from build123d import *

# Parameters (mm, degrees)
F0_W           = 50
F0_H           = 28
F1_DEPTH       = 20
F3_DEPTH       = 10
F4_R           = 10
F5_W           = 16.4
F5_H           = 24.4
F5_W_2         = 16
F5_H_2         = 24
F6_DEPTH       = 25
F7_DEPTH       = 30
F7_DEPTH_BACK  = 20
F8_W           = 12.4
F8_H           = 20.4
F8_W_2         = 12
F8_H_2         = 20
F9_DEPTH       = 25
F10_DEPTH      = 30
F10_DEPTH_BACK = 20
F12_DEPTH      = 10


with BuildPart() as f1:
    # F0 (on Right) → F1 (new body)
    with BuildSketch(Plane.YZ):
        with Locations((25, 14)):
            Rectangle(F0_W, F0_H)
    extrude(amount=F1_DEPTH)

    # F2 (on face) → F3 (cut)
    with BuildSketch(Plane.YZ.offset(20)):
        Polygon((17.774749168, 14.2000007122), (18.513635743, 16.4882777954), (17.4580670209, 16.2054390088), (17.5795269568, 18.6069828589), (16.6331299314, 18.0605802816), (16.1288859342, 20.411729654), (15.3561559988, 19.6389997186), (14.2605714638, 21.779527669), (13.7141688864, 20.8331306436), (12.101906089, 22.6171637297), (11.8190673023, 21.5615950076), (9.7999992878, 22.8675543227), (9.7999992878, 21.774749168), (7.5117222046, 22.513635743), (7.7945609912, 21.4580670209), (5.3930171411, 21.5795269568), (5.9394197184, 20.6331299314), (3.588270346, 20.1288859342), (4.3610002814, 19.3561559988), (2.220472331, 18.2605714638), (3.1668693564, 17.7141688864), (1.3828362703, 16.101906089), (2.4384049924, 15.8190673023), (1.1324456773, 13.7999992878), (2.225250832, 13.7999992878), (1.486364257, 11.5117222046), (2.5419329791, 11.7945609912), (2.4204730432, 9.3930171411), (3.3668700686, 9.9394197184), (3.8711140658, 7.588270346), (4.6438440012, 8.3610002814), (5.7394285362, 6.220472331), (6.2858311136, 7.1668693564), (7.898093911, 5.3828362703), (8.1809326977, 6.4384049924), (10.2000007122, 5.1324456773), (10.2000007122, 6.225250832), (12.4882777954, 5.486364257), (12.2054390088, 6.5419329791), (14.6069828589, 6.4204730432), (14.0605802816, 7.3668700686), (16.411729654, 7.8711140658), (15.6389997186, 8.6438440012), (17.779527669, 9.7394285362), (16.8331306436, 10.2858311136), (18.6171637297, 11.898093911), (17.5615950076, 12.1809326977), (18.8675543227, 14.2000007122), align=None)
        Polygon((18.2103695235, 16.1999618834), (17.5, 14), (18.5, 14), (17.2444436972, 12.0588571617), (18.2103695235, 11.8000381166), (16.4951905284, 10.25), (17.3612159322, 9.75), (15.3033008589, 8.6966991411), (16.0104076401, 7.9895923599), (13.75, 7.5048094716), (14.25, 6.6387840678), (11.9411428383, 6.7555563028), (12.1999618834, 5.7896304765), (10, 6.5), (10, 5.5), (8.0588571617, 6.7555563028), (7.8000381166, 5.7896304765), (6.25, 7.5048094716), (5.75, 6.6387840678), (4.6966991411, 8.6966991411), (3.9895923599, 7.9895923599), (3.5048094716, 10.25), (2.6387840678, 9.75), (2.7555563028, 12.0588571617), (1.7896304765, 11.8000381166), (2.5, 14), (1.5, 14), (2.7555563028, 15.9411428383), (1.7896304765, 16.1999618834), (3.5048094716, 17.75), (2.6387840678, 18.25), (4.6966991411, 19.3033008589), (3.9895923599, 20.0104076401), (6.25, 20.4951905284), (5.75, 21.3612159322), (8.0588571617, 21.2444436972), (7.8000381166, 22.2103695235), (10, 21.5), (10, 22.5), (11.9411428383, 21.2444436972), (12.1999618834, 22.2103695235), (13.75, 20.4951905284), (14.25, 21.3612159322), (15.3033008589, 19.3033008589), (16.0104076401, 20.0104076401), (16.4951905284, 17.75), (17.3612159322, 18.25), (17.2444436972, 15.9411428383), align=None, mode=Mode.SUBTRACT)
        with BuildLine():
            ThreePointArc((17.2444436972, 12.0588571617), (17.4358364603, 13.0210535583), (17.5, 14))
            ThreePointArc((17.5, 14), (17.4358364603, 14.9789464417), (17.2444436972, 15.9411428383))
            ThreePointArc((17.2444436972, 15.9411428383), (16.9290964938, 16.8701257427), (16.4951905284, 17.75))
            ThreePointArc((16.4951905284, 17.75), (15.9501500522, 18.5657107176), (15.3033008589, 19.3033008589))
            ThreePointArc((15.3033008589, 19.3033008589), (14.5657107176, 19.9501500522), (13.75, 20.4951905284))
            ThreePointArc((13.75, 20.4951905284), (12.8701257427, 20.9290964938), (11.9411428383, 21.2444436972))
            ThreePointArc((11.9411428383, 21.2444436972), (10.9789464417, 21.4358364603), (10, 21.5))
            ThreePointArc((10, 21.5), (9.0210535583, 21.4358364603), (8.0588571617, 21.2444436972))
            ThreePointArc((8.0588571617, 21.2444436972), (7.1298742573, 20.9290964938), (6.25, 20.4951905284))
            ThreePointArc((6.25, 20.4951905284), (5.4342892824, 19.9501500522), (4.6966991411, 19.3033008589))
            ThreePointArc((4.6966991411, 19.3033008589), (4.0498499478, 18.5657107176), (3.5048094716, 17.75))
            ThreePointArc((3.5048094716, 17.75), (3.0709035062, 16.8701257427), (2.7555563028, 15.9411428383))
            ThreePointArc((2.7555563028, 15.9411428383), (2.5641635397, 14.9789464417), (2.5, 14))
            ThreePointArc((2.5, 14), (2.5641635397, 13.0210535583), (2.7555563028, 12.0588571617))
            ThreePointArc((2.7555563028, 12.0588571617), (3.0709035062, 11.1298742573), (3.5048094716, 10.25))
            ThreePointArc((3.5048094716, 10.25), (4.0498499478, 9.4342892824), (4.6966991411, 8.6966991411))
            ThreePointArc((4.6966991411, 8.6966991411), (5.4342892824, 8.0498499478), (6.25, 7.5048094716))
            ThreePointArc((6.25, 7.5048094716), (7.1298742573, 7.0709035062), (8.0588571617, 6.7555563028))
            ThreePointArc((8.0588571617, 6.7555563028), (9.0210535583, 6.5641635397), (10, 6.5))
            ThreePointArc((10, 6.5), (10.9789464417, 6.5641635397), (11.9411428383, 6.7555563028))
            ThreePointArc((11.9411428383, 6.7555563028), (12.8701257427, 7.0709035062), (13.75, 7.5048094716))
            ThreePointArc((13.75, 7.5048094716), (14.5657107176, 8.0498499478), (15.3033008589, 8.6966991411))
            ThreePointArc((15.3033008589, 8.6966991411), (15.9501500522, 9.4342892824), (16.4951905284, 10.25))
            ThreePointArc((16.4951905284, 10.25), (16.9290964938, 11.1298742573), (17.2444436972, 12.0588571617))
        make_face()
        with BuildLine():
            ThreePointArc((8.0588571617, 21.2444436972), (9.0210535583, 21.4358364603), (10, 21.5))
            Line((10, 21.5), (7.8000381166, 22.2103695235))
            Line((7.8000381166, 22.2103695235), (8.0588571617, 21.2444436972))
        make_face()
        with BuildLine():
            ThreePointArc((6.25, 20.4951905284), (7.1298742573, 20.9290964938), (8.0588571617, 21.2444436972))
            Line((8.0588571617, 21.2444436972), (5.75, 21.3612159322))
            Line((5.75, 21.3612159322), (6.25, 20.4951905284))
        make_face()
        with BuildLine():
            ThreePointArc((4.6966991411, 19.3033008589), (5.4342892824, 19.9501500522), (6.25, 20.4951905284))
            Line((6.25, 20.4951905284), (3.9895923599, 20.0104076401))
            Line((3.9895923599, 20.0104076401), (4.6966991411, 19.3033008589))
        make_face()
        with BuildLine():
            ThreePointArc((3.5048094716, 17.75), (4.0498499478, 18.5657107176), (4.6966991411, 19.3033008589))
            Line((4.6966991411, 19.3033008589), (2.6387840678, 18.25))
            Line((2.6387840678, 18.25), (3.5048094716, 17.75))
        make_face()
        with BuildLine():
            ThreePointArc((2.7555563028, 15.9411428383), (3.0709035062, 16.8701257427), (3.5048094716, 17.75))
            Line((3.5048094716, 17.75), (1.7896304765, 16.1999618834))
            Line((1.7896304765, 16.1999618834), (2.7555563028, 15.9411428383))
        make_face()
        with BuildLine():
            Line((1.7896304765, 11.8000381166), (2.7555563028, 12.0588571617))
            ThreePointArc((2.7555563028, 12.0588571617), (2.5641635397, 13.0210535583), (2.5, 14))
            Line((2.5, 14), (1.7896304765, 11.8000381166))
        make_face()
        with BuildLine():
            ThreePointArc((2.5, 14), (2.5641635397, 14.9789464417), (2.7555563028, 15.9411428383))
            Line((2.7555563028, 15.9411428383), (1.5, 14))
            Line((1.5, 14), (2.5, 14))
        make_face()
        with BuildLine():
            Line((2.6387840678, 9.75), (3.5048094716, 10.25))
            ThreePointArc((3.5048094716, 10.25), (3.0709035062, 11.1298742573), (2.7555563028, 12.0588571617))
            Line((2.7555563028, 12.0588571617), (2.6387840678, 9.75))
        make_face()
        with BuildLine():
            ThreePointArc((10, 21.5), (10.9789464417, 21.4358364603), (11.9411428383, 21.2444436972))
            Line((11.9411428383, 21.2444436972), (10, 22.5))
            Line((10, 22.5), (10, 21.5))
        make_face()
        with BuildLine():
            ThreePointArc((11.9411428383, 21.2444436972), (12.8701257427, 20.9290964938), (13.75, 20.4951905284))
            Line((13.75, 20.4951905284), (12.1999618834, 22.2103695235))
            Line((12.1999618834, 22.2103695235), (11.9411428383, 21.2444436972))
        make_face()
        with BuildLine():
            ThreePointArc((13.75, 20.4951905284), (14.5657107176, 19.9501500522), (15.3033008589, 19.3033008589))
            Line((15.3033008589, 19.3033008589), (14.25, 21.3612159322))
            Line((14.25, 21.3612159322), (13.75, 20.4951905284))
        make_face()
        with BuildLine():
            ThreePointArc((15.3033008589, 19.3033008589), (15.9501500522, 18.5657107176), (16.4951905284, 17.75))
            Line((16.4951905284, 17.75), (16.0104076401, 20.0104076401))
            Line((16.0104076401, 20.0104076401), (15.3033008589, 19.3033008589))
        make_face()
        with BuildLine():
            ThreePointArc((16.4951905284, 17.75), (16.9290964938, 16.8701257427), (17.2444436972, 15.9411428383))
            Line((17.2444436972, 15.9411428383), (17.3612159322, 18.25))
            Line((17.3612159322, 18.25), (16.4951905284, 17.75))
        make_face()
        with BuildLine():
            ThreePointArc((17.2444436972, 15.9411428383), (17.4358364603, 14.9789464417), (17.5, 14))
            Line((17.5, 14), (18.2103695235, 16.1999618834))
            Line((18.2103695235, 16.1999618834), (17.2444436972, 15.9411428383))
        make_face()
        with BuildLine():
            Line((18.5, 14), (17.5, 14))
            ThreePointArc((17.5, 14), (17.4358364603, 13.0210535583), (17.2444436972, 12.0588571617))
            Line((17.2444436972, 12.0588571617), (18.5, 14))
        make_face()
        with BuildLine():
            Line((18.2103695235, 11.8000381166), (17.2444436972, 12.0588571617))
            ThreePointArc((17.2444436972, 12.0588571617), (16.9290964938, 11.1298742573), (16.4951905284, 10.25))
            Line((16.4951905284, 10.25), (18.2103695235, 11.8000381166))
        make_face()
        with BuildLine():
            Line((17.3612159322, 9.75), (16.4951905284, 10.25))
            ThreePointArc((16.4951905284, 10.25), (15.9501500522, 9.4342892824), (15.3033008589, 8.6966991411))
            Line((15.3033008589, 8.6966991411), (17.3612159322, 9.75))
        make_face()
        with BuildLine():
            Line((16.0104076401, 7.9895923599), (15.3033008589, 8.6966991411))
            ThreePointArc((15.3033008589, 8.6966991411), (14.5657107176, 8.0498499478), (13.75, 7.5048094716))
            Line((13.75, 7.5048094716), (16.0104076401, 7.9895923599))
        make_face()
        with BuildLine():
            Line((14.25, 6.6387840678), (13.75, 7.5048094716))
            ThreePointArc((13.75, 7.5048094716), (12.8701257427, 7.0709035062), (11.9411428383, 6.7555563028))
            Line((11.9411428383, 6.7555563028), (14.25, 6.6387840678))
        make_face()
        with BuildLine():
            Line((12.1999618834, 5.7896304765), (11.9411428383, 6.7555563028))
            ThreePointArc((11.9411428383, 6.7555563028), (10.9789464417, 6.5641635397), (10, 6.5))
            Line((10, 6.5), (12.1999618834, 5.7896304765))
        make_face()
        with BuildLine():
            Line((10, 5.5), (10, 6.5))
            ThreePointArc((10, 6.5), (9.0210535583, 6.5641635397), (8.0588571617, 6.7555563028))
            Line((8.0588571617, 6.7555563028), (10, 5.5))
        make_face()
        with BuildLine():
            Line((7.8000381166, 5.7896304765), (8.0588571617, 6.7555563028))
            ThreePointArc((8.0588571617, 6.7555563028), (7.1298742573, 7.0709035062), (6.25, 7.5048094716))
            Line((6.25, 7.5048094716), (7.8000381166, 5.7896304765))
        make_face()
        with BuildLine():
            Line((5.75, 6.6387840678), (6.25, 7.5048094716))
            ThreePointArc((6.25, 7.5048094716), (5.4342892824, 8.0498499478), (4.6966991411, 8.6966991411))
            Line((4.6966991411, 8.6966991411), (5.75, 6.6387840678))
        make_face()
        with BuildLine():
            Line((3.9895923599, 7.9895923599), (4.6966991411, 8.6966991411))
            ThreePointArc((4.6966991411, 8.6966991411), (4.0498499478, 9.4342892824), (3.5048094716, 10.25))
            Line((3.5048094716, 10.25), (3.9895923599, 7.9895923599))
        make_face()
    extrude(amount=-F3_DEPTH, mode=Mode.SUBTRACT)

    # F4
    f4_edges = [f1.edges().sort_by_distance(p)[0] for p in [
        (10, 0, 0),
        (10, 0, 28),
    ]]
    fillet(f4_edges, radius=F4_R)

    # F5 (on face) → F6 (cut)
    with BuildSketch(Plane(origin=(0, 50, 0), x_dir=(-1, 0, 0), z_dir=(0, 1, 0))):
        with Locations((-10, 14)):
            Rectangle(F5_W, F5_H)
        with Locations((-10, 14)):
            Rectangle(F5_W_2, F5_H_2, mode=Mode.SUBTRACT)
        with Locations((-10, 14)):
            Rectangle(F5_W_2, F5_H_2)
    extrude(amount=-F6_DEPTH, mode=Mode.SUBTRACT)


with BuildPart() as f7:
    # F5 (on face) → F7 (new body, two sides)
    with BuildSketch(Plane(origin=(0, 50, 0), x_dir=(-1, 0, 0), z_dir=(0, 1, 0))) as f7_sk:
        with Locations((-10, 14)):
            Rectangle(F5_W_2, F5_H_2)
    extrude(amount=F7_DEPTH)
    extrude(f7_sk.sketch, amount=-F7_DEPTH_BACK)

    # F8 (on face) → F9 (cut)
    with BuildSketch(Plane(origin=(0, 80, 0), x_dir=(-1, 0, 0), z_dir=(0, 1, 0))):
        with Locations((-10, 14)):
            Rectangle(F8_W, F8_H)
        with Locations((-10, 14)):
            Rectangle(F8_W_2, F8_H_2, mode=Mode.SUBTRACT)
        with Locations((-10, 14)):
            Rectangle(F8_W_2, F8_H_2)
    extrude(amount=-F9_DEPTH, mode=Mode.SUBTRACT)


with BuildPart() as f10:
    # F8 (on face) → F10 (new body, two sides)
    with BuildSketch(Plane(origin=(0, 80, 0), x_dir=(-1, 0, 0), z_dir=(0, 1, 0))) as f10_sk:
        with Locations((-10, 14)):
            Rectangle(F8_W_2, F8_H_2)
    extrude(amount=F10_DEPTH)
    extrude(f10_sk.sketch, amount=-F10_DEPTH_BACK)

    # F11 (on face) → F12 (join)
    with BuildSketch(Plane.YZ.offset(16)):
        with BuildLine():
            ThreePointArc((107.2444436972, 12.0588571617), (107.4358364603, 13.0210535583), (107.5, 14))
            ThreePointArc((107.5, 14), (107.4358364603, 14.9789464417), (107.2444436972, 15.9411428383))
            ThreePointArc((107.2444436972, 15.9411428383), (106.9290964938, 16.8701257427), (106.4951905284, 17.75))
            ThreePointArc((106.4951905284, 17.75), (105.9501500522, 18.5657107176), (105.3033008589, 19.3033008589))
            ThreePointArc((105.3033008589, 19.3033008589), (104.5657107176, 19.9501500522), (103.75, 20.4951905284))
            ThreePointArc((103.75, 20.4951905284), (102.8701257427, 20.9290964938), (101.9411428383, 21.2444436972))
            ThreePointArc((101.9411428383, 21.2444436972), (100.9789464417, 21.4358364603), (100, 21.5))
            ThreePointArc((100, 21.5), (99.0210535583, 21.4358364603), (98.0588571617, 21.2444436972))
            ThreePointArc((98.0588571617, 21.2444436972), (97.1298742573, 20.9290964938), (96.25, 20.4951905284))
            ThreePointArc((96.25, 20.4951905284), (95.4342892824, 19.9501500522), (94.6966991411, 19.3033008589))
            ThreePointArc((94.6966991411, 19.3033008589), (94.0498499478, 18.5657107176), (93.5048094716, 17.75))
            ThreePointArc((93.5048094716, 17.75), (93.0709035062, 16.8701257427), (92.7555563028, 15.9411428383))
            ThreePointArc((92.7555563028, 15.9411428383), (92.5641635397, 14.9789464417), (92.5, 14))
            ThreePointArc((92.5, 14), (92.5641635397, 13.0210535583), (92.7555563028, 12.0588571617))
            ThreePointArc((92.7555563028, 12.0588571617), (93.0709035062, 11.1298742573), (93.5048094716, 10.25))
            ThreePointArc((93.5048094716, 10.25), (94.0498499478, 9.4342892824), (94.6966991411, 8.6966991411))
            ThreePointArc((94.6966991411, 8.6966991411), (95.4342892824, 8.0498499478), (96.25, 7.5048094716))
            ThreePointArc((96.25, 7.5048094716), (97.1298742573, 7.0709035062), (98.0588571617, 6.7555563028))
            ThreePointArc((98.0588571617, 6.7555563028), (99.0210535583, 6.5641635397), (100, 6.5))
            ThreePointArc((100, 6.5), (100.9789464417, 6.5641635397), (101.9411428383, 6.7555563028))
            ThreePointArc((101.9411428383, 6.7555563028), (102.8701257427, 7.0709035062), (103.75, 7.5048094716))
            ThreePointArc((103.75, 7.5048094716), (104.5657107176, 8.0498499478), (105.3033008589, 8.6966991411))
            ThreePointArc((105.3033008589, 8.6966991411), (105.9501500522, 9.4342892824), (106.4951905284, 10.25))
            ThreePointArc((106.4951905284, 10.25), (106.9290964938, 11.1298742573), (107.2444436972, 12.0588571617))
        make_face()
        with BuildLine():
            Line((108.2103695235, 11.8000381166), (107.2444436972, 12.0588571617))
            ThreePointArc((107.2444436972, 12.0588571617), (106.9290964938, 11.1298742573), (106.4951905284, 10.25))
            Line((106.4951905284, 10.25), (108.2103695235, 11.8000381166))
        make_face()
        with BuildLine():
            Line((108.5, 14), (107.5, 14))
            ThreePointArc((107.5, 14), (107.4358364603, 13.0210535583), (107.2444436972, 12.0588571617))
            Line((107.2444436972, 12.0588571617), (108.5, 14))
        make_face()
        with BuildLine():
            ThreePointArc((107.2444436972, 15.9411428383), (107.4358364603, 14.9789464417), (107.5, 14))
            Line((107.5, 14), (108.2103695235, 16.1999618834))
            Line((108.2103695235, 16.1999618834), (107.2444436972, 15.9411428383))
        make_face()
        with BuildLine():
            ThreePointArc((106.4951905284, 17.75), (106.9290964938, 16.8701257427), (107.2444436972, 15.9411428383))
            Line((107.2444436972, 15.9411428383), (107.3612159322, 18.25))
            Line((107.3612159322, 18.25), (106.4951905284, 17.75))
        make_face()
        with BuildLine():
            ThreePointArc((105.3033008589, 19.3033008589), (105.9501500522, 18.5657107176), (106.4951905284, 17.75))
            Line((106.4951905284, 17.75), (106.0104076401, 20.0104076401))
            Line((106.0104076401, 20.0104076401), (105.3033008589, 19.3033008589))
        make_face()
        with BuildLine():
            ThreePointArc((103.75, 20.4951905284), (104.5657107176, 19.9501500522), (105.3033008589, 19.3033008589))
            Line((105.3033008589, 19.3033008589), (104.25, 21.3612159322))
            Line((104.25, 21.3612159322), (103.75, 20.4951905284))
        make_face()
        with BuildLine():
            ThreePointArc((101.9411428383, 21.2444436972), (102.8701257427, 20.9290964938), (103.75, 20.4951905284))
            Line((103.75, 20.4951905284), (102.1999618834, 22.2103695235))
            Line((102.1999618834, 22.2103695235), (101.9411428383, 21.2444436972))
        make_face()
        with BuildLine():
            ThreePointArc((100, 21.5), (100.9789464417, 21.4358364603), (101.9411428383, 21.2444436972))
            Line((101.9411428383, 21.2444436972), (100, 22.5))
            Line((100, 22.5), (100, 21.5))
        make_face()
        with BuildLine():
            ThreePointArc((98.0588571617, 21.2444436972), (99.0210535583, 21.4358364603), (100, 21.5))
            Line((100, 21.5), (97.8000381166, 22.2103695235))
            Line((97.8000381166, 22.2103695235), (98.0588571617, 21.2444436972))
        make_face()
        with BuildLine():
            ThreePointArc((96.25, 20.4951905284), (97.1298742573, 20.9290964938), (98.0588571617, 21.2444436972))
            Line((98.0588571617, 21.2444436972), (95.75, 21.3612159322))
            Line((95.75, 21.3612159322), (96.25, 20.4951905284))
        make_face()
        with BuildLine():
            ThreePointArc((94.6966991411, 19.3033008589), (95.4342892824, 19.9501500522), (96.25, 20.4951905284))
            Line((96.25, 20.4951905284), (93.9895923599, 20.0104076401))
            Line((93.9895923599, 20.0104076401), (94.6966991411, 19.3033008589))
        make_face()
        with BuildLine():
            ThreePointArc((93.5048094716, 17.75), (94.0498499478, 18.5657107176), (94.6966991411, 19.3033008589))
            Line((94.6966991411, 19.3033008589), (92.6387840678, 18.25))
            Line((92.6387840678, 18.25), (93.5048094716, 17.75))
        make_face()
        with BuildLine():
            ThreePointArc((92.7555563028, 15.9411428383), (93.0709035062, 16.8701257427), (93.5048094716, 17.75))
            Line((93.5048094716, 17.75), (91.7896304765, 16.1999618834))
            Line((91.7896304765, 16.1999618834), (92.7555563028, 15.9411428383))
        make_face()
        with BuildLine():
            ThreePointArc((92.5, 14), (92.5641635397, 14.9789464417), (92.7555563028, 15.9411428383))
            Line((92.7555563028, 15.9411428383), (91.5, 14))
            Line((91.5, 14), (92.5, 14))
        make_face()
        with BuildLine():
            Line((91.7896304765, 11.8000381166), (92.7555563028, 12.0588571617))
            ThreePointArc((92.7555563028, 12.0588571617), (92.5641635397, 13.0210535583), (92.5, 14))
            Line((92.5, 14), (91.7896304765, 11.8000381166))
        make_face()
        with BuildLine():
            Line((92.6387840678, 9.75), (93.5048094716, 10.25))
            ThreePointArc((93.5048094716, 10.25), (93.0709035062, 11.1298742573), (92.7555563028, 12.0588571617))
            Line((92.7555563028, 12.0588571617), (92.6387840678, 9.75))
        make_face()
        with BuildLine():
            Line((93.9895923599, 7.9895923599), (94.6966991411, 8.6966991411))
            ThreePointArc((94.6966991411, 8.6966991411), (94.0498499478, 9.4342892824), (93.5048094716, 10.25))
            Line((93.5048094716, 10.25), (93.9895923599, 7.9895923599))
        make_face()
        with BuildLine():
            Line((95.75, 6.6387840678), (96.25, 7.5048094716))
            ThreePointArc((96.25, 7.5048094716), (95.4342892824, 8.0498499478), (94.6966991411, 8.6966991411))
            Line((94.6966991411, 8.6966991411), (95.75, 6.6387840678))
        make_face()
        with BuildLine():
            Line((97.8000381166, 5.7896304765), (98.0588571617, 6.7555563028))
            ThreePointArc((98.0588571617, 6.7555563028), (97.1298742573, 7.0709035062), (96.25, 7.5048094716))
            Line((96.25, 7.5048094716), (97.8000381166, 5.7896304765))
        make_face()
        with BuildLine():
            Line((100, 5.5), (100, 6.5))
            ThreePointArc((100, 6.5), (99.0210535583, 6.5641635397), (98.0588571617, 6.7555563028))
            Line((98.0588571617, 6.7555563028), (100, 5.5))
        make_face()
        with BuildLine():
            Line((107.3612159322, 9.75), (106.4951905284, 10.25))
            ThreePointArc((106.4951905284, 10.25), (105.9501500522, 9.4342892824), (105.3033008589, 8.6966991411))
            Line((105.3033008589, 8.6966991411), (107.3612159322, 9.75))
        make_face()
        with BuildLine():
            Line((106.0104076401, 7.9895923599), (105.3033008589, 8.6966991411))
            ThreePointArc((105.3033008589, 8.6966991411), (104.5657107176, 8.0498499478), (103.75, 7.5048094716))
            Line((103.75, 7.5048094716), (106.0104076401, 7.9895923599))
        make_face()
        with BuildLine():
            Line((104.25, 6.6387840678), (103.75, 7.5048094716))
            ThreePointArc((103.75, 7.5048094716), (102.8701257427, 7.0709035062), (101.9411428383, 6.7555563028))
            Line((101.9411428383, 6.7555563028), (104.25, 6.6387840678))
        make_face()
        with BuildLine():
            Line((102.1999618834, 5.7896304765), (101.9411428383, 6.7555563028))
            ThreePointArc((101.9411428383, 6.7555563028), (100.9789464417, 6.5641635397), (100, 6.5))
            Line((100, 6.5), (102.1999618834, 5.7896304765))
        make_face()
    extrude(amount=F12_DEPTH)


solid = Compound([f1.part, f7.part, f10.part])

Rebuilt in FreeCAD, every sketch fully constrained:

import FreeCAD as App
import Part
import Sketcher
Q = App.Units.Quantity


def edges_at(feature, points):
    """Names of the edges that pass closest to the given points."""
    edges = feature.Shape.Edges
    near = lambda p: min(range(len(edges)), key=lambda i: edges[i].distToShape(Part.Vertex(*p))[0])
    return sorted({f"Edge{near(p) + 1}" for p in points})


def add_polygon(sketch, points):
    """Adds a closed chain of lines whose ends are joined by coincident constraints."""
    first, n = sketch.GeometryCount, len(points)
    for a, b in zip(points, points[1:] + points[:1]):
        sketch.addGeometry(Part.LineSegment(App.Vector(*a, 0), App.Vector(*b, 0)), False)
    for i in range(n):
        sketch.addConstraint(Sketcher.Constraint("Coincident", first + i, 2, first + (i + 1) % n, 1))

doc = App.newDocument("Part")
body = doc.addObject("PartDesign::Body", "Body")

# Sketch on YZ plane
sketch1 = body.newObject("Sketcher::SketchObject", "Sketch")
sketch1.AttachmentSupport = (doc.getObject("YZ_Plane"), [""])
sketch1.MapMode = "FlatFace"
add_polygon(sketch1, [(0, 28), (0, 0), (50, 0), (50, 28)])  # lines 0-3
sketch1.addConstraint([
    Sketcher.Constraint("Vertical", 0),
    Sketcher.Constraint("Horizontal", 1),
    Sketcher.Constraint("Vertical", 2),
    Sketcher.Constraint("Horizontal", 3),
    Sketcher.Constraint("Coincident", 0, 2, -1, 1),
    Sketcher.Constraint("DistanceX", 1, 1, 1, 2, 50.0),
    Sketcher.Constraint("DistanceY", 0, 2, 0, 1, 28.0),
])
pad1 = body.newObject("PartDesign::Pad", "Pad")
pad1.Profile = sketch1
pad1.Length = 20

# Sketch on YZ plane
sketch2 = body.newObject("Sketcher::SketchObject", "Sketch001")
sketch2.AttachmentSupport = (doc.getObject("YZ_Plane"), [""])
sketch2.MapMode = "FlatFace"
sketch2.AttachmentOffset = App.Placement(App.Vector(0, 0, 20), App.Rotation())
add_polygon(sketch2, [(17.8, 14.2), (18.5, 16.5), (17.5, 16.2), (17.6, 18.6), (16.6, 18.1), (16.1, 20.4), (15.4, 19.6), (14.3, 21.8), (13.7, 20.8), (12.1, 22.6), (11.8, 21.6), (9.8, 22.9), (9.8, 21.8), (7.5, 22.5), (7.8, 21.5), (5.4, 21.6), (5.9, 20.6), (3.6, 20.1), (4.4, 19.4), (2.2, 18.3), (3.2, 17.7), (1.4, 16.1), (2.4, 15.8), (1.1, 13.8), (2.2, 13.8), (1.5, 11.5), (2.5, 11.8), (2.4, 9.4), (3.4, 9.9), (3.9, 7.6), (4.6, 8.4), (5.7, 6.2), (6.3, 7.2), (7.9, 5.4), (8.2, 6.4), (10.2, 5.1), (10.2, 6.2), (12.5, 5.5), (12.2, 6.5), (14.6, 6.4), (14.1, 7.4), (16.4, 7.9), (15.6, 8.6), (17.8, 9.7), (16.8, 10.3), (18.6, 11.9), (17.6, 12.2), (18.9, 14.2)])  # lines 0-47
sketch2.addConstraint([
    Sketcher.Constraint("Vertical", 11),
    Sketcher.Constraint("Horizontal", 23),
    Sketcher.Constraint("Vertical", 35),
    Sketcher.Constraint("Horizontal", 47),
    Sketcher.Constraint("Perpendicular", 0, 12),
    Sketcher.Constraint("Perpendicular", 1, 13),
    Sketcher.Constraint("Perpendicular", 2, 14),
    Sketcher.Constraint("Perpendicular", 3, 15),
    Sketcher.Constraint("Perpendicular", 4, 16),
    Sketcher.Constraint("Perpendicular", 5, 17),
    Sketcher.Constraint("Perpendicular", 6, 18),
    Sketcher.Constraint("Perpendicular", 7, 19),
    Sketcher.Constraint("Perpendicular", 8, 20),
    Sketcher.Constraint("Perpendicular", 9, 21),
    Sketcher.Constraint("Perpendicular", 10, 22),
    Sketcher.Constraint("Perpendicular", 12, 24),
    Sketcher.Constraint("Perpendicular", 13, 25),
    Sketcher.Constraint("Perpendicular", 14, 26),
    Sketcher.Constraint("Perpendicular", 15, 27),
    Sketcher.Constraint("Perpendicular", 16, 28),
    Sketcher.Constraint("Perpendicular", 17, 29),
    Sketcher.Constraint("Perpendicular", 18, 30),
    Sketcher.Constraint("Perpendicular", 19, 31),
    Sketcher.Constraint("Perpendicular", 20, 32),
    Sketcher.Constraint("Perpendicular", 21, 33),
    Sketcher.Constraint("Perpendicular", 22, 34),
    Sketcher.Constraint("Perpendicular", 24, 36),
    Sketcher.Constraint("Perpendicular", 25, 37),
    Sketcher.Constraint("Perpendicular", 26, 38),
    Sketcher.Constraint("Perpendicular", 27, 39),
    Sketcher.Constraint("Perpendicular", 28, 40),
    Sketcher.Constraint("Perpendicular", 29, 41),
    Sketcher.Constraint("Perpendicular", 30, 42),
    Sketcher.Constraint("Perpendicular", 31, 43),
    Sketcher.Constraint("Perpendicular", 32, 44),
    Sketcher.Constraint("Perpendicular", 33, 45),
    Sketcher.Constraint("Perpendicular", 34, 46),
    Sketcher.Constraint("Equal", 23, 47),
    Sketcher.Constraint("Equal", 47, 11),
    Sketcher.Constraint("Equal", 11, 35),
    Sketcher.Constraint("Equal", 0, 2),
    Sketcher.Constraint("Equal", 1, 3),
    Sketcher.Constraint("Equal", 2, 4),
    Sketcher.Constraint("Equal", 3, 5),
    Sketcher.Constraint("Equal", 4, 6),
    Sketcher.Constraint("Equal", 5, 7),
    Sketcher.Constraint("Equal", 6, 8),
    Sketcher.Constraint("Equal", 7, 9),
    Sketcher.Constraint("Equal", 8, 10),
    Sketcher.Constraint("Equal", 10, 12),
    Sketcher.Constraint("Equal", 9, 13),
    Sketcher.Constraint("Equal", 12, 14),
    Sketcher.Constraint("Equal", 13, 15),
    Sketcher.Constraint("Equal", 14, 16),
    Sketcher.Constraint("Equal", 15, 17),
    Sketcher.Constraint("Equal", 16, 18),
    Sketcher.Constraint("Equal", 17, 19),
    Sketcher.Constraint("Equal", 18, 20),
    Sketcher.Constraint("Equal", 19, 21),
    Sketcher.Constraint("Equal", 20, 22),
    Sketcher.Constraint("Equal", 22, 24),
    Sketcher.Constraint("Equal", 21, 25),
    Sketcher.Constraint("Equal", 24, 26),
    Sketcher.Constraint("Equal", 25, 27),
    Sketcher.Constraint("Equal", 26, 28),
    Sketcher.Constraint("Equal", 27, 29),
    Sketcher.Constraint("Equal", 28, 30),
    Sketcher.Constraint("Equal", 29, 31),
    Sketcher.Constraint("Equal", 30, 32),
    Sketcher.Constraint("Equal", 31, 33),
    Sketcher.Constraint("Equal", 32, 34),
    Sketcher.Constraint("Equal", 34, 36),
    Sketcher.Constraint("Equal", 33, 37),
    Sketcher.Constraint("Equal", 36, 38),
    Sketcher.Constraint("Equal", 37, 39),
    Sketcher.Constraint("Equal", 38, 40),
    Sketcher.Constraint("Equal", 39, 41),
    Sketcher.Constraint("Equal", 40, 42),
    Sketcher.Constraint("Equal", 41, 43),
    Sketcher.Constraint("Equal", 42, 44),
    Sketcher.Constraint("Angle", 1, Q("-165 deg")),
    Sketcher.Constraint("Angle", 3, Q("-150 deg")),
    Sketcher.Constraint("Angle", 5, Q("-135 deg")),
    Sketcher.Constraint("Angle", 7, Q("-120 deg")),
    Sketcher.Constraint("Angle", 9, Q("-105 deg")),
    Sketcher.Constraint("DistanceX", -1, 1, 10, 2, 9.799999),
    Sketcher.Constraint("DistanceY", -1, 1, 22, 2, 13.799999),
    Sketcher.Constraint("DistanceX", -1, 1, 34, 2, 10.200001),
    Sketcher.Constraint("DistanceY", -1, 1, 5, 2, 19.639),
    Sketcher.Constraint("DistanceY", 4, 2, 6, 2, 1.367798),
    Sketcher.Constraint("DistanceY", 4, 2, 7, 2, 0.421401),
    Sketcher.Constraint("DistanceX", 9, 2, 7, 2, 1.895102),
    Sketcher.Constraint("DistanceX", 23, 1, 23, 2, 1.092805),
    Sketcher.Constraint("DistanceY", -1, 1, 1, 2, 16.205439),
    Sketcher.Constraint("DistanceX", -1, 1, 3, 2, 16.63313),
    Sketcher.Constraint("DistanceY", -1, 1, 3, 2, 18.06058),
])
pocket1 = body.newObject("PartDesign::Pocket", "Pocket")
pocket1.Profile = sketch2
pocket1.Length = 10
doc.recompute()

fillet = body.newObject("PartDesign::Fillet", "Fillet")
fillet.Base = (pocket1, edges_at(pocket1, [(10, 0, 0), (10, 0, 28)]))
fillet.Radius = 10

# Sketch on XZ plane
sketch3 = body.newObject("Sketcher::SketchObject", "Sketch002")
sketch3.AttachmentSupport = (doc.getObject("XZ_Plane"), [""])
sketch3.MapMode = "FlatFace"
sketch3.AttachmentOffset = App.Placement(App.Vector(0, 0, -50), App.Rotation())
add_polygon(sketch3, [(18, 26), (18, 2), (2, 2), (2, 26)])  # lines 0-3
sketch3.addConstraint([
    Sketcher.Constraint("Vertical", 0),
    Sketcher.Constraint("Horizontal", 1),
    Sketcher.Constraint("Vertical", 2),
    Sketcher.Constraint("Horizontal", 3),
    Sketcher.Constraint("DistanceX", 1, 2, 1, 1, 16.4),
    Sketcher.Constraint("DistanceY", 0, 2, 0, 1, 24.4),
    Sketcher.Constraint("DistanceX", -1, 1, 0, 2, 18.2),
    Sketcher.Constraint("DistanceY", -1, 1, 0, 2, 1.8),
])
pocket2 = body.newObject("PartDesign::Pocket", "Pocket001")
pocket2.Profile = sketch3
pocket2.Length = 25
pocket2.Reversed = True
body2 = doc.addObject("PartDesign::Body", "Body001")

# Sketch on XZ plane
sketch4 = body2.newObject("Sketcher::SketchObject", "Sketch003")
sketch4.AttachmentSupport = (doc.getObject("XZ_Plane001"), [""])
sketch4.MapMode = "FlatFace"
sketch4.AttachmentOffset = App.Placement(App.Vector(0, 0, -50), App.Rotation())
add_polygon(sketch4, [(18, 26), (18, 2), (2, 2), (2, 26)])  # lines 0-3
sketch4.addConstraint([
    Sketcher.Constraint("Vertical", 0),
    Sketcher.Constraint("Horizontal", 1),
    Sketcher.Constraint("Vertical", 2),
    Sketcher.Constraint("Horizontal", 3),
    Sketcher.Constraint("DistanceX", 1, 2, 1, 1, 16.0),
    Sketcher.Constraint("DistanceY", 0, 2, 0, 1, 24.0),
    Sketcher.Constraint("DistanceX", -1, 1, 0, 2, 18.0),
    Sketcher.Constraint("DistanceY", -1, 1, 0, 2, 2.0),
])
pad2 = body2.newObject("PartDesign::Pad", "Pad001")
pad2.Profile = sketch4
pad2.Type = "TwoLengths"
pad2.Length = 30
pad2.Length2 = 20
pad2.Reversed = True

# Sketch on XZ plane
sketch5 = body2.newObject("Sketcher::SketchObject", "Sketch004")
sketch5.AttachmentSupport = (doc.getObject("XZ_Plane001"), [""])
sketch5.MapMode = "FlatFace"
sketch5.AttachmentOffset = App.Placement(App.Vector(0, 0, -80), App.Rotation())
add_polygon(sketch5, [(16, 24), (16, 4), (4, 4), (4, 24)])  # lines 0-3
sketch5.addConstraint([
    Sketcher.Constraint("Vertical", 0),
    Sketcher.Constraint("Horizontal", 1),
    Sketcher.Constraint("Vertical", 2),
    Sketcher.Constraint("Horizontal", 3),
    Sketcher.Constraint("DistanceX", 1, 2, 1, 1, 12.4),
    Sketcher.Constraint("DistanceY", 0, 2, 0, 1, 20.4),
    Sketcher.Constraint("DistanceX", -1, 1, 0, 2, 16.2),
    Sketcher.Constraint("DistanceY", -1, 1, 0, 2, 3.8),
])
pocket3 = body2.newObject("PartDesign::Pocket", "Pocket002")
pocket3.Profile = sketch5
pocket3.Length = 25
pocket3.Reversed = True
body3 = doc.addObject("PartDesign::Body", "Body002")

# Sketch on XZ plane
sketch6 = body3.newObject("Sketcher::SketchObject", "Sketch005")
sketch6.AttachmentSupport = (doc.getObject("XZ_Plane002"), [""])
sketch6.MapMode = "FlatFace"
sketch6.AttachmentOffset = App.Placement(App.Vector(0, 0, -80), App.Rotation())
add_polygon(sketch6, [(16, 24), (16, 4), (4, 4), (4, 24)])  # lines 0-3
sketch6.addConstraint([
    Sketcher.Constraint("Vertical", 0),
    Sketcher.Constraint("Horizontal", 1),
    Sketcher.Constraint("Vertical", 2),
    Sketcher.Constraint("Horizontal", 3),
    Sketcher.Constraint("DistanceX", 1, 2, 1, 1, 12.0),
    Sketcher.Constraint("DistanceY", 0, 2, 0, 1, 20.0),
    Sketcher.Constraint("DistanceX", -1, 1, 0, 2, 16.0),
    Sketcher.Constraint("DistanceY", -1, 1, 0, 2, 4.0),
])
pad3 = body3.newObject("PartDesign::Pad", "Pad002")
pad3.Profile = sketch6
pad3.Type = "TwoLengths"
pad3.Length = 30
pad3.Length2 = 20
pad3.Reversed = True

# Sketch on YZ plane
sketch7 = body3.newObject("Sketcher::SketchObject", "Sketch006")
sketch7.AttachmentSupport = (doc.getObject("YZ_Plane002"), [""])
sketch7.MapMode = "FlatFace"
sketch7.AttachmentOffset = App.Placement(App.Vector(0, 0, 16), App.Rotation())
add_polygon(sketch7, [(101.9, 6.8), (104.2, 6.6), (103.8, 7.5), (106, 8), (105.3, 8.7), (107.4, 9.8), (106.5, 10.2), (108.2, 11.8), (107.2, 12.1), (108.5, 14), (107.5, 14), (108.2, 16.2), (107.2, 15.9), (107.4, 18.2), (106.5, 17.8), (106, 20), (105.3, 19.3), (104.2, 21.4), (103.8, 20.5), (102.2, 22.2), (101.9, 21.2), (100, 22.5), (100, 21.5), (97.8, 22.2), (98.1, 21.2), (95.8, 21.4), (96.2, 20.5), (94, 20), (94.7, 19.3), (92.6, 18.2), (93.5, 17.8), (91.8, 16.2), (92.8, 15.9), (91.5, 14), (92.5, 14), (91.8, 11.8), (92.8, 12.1), (92.6, 9.8), (93.5, 10.2), (94, 8), (94.7, 8.7), (95.8, 6.6), (96.2, 7.5), (97.8, 5.8), (98.1, 6.8), (100, 5.5), (100, 6.5), (102.2, 5.8)])  # lines 0-47
sketch7.addConstraint([
    Sketcher.Constraint("Horizontal", 9),
    Sketcher.Constraint("Vertical", 21),
    Sketcher.Constraint("Horizontal", 33),
    Sketcher.Constraint("Vertical", 45),
    Sketcher.Constraint("Perpendicular", 0, 12),
    Sketcher.Constraint("Perpendicular", 1, 13),
    Sketcher.Constraint("Perpendicular", 2, 14),
    Sketcher.Constraint("Perpendicular", 3, 15),
    Sketcher.Constraint("Perpendicular", 4, 16),
    Sketcher.Constraint("Perpendicular", 5, 17),
    Sketcher.Constraint("Perpendicular", 6, 18),
    Sketcher.Constraint("Perpendicular", 7, 19),
    Sketcher.Constraint("Perpendicular", 8, 20),
    Sketcher.Constraint("Perpendicular", 10, 22),
    Sketcher.Constraint("Perpendicular", 11, 23),
    Sketcher.Constraint("Perpendicular", 12, 24),
    Sketcher.Constraint("Perpendicular", 13, 25),
    Sketcher.Constraint("Perpendicular", 14, 26),
    Sketcher.Constraint("Perpendicular", 15, 27),
    Sketcher.Constraint("Perpendicular", 16, 28),
    Sketcher.Constraint("Perpendicular", 17, 29),
    Sketcher.Constraint("Perpendicular", 18, 30),
    Sketcher.Constraint("Perpendicular", 19, 31),
    Sketcher.Constraint("Perpendicular", 20, 32),
    Sketcher.Constraint("Perpendicular", 22, 34),
    Sketcher.Constraint("Perpendicular", 23, 35),
    Sketcher.Constraint("Perpendicular", 24, 36),
    Sketcher.Constraint("Perpendicular", 25, 37),
    Sketcher.Constraint("Perpendicular", 26, 38),
    Sketcher.Constraint("Perpendicular", 27, 39),
    Sketcher.Constraint("Perpendicular", 28, 40),
    Sketcher.Constraint("Perpendicular", 29, 41),
    Sketcher.Constraint("Perpendicular", 30, 42),
    Sketcher.Constraint("Perpendicular", 31, 43),
    Sketcher.Constraint("Perpendicular", 32, 44),
    Sketcher.Constraint("Perpendicular", 34, 46),
    Sketcher.Constraint("Perpendicular", 35, 47),
    Sketcher.Constraint("Horizontal", 18, 2, 22, 2),
    Sketcher.Constraint("Horizontal", 19, 2, 23, 2),
    Sketcher.Constraint("Horizontal", 16, 2, 24, 2),
    Sketcher.Constraint("Horizontal", 17, 2, 25, 2),
    Sketcher.Constraint("Horizontal", 14, 2, 26, 2),
    Sketcher.Constraint("Horizontal", 15, 2, 27, 2),
    Sketcher.Constraint("Horizontal", 12, 2, 28, 2),
    Sketcher.Constraint("Horizontal", 13, 2, 29, 2),
    Sketcher.Constraint("Horizontal", 10, 2, 30, 2),
    Sketcher.Constraint("Horizontal", 11, 2, 31, 2),
    Sketcher.Constraint("Horizontal", 9, 2, 32, 2),
    Sketcher.Constraint("Horizontal", 6, 2, 34, 2),
    Sketcher.Constraint("Horizontal", 7, 2, 35, 2),
    Sketcher.Constraint("Horizontal", 4, 2, 36, 2),
    Sketcher.Constraint("Horizontal", 5, 2, 37, 2),
    Sketcher.Constraint("Horizontal", 2, 2, 38, 2),
    Sketcher.Constraint("Horizontal", 3, 2, 39, 2),
    Sketcher.Constraint("Horizontal", 0, 2, 40, 2),
    Sketcher.Constraint("Horizontal", 1, 2, 41, 2),
    Sketcher.Constraint("Horizontal", 42, 2, 46, 2),
    Sketcher.Constraint("Horizontal", 43, 2, 47, 2),
    Sketcher.Constraint("Vertical", 6, 2, 10, 2),
    Sketcher.Constraint("Vertical", 7, 2, 11, 2),
    Sketcher.Constraint("Vertical", 4, 2, 12, 2),
    Sketcher.Constraint("Vertical", 5, 2, 13, 2),
    Sketcher.Constraint("Vertical", 2, 2, 14, 2),
    Sketcher.Constraint("Vertical", 3, 2, 15, 2),
    Sketcher.Constraint("Vertical", 0, 2, 16, 2),
    Sketcher.Constraint("Vertical", 1, 2, 17, 2),
    Sketcher.Constraint("Vertical", 30, 2, 34, 2),
    Sketcher.Constraint("Vertical", 31, 2, 35, 2),
    Sketcher.Constraint("Vertical", 28, 2, 36, 2),
    Sketcher.Constraint("Vertical", 29, 2, 37, 2),
    Sketcher.Constraint("Vertical", 26, 2, 38, 2),
    Sketcher.Constraint("Vertical", 27, 2, 39, 2),
    Sketcher.Constraint("Vertical", 24, 2, 40, 2),
    Sketcher.Constraint("Vertical", 22, 2, 42, 2),
    Sketcher.Constraint("Vertical", 23, 2, 43, 2),
    Sketcher.Constraint("Vertical", 21, 2, 44, 2),
    Sketcher.Constraint("Vertical", 18, 2, 46, 2),
    Sketcher.Constraint("Equal", 9, 33),
    Sketcher.Constraint("Equal", 33, 21),
    Sketcher.Constraint("Equal", 21, 45),
    Sketcher.Constraint("Equal", 0, 2),
    Sketcher.Constraint("Equal", 1, 3),
    Sketcher.Constraint("Equal", 2, 4),
    Sketcher.Constraint("Equal", 3, 5),
    Sketcher.Constraint("Equal", 4, 6),
    Sketcher.Constraint("Equal", 5, 7),
    Sketcher.Constraint("Equal", 6, 8),
    Sketcher.Constraint("Equal", 8, 10),
    Sketcher.Constraint("Equal", 10, 12),
    Sketcher.Constraint("DistanceX", 9, 2, 9, 1, 1.0),
    Sketcher.Constraint("Angle", 1, Q("120 deg")),
    Sketcher.Constraint("Angle", 7, Q("165 deg")),
    Sketcher.Constraint("Distance", 1, 1.0),
    Sketcher.Constraint("DistanceY", -1, 1, 8, 2, 14.0),
    Sketcher.Constraint("DistanceX", -1, 1, 20, 2, 100.0),
    Sketcher.Constraint("DistanceX", -1, 1, 8, 2, 108.5),
])
pad4 = body3.newObject("PartDesign::Pad", "Pad003")
pad4.Profile = sketch7
pad4.Length = 10

doc.recompute()
